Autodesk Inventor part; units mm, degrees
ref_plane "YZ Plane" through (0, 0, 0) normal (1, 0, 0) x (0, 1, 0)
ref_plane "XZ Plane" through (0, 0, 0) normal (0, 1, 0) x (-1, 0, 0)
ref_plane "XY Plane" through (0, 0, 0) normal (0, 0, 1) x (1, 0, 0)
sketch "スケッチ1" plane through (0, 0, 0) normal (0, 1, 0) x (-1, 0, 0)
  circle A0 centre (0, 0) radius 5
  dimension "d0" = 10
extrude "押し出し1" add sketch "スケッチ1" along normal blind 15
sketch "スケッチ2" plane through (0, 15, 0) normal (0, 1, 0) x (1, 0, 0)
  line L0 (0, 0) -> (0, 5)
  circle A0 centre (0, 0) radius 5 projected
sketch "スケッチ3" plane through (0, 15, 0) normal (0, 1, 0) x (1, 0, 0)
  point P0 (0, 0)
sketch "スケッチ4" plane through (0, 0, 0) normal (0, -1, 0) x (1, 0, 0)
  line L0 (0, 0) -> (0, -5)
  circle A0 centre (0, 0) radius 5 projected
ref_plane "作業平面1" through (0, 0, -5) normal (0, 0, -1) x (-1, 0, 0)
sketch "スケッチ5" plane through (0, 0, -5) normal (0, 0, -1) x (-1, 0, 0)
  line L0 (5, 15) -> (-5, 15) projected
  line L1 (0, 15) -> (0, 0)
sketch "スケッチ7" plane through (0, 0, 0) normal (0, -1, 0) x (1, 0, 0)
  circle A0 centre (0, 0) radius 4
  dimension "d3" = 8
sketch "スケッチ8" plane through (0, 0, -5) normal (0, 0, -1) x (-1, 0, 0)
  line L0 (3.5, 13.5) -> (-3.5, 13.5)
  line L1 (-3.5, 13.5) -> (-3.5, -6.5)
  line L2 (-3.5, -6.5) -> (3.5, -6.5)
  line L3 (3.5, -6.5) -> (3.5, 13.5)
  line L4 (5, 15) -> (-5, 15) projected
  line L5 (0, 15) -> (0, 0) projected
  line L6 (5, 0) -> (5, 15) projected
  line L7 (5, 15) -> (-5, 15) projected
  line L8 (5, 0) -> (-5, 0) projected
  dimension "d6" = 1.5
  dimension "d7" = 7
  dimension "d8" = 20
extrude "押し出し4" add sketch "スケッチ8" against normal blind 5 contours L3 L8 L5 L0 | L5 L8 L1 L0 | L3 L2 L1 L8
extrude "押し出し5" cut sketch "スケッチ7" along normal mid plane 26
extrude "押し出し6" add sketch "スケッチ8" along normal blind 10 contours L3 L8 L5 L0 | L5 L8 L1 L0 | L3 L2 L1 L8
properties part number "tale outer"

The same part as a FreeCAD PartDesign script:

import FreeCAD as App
import Part
import Sketcher

V = App.Vector
Q = App.Units.Quantity


def add_polygon(sketch, points):
    """Adds a closed chain of lines whose ends are joined by coincident constraints."""
    first, n = sketch.GeometryCount, len(points)
    for a, b in zip(points, points[1:] + points[:1]):
        sketch.addGeometry(Part.LineSegment(App.Vector(*a, 0), App.Vector(*b, 0)), False)
    for i in range(n):
        sketch.addConstraint(Sketcher.Constraint("Coincident", first + i, 2, first + (i + 1) % n, 1))

doc = App.newDocument("Part")
body = doc.addObject("PartDesign::Body", "Body")

# Sketch on XZ plane
sketch1 = doc.addObject("Sketcher::SketchObject", "Sketch")
body.addObject(sketch1)
sketch1.AttachmentSupport = (doc.XZ_Plane, [""])
sketch1.MapMode = "FlatFace"
sketch1.addGeometry(Part.Circle(V(0, 0, 0), V(0, 0, 1), 5), False)
sketch1.addConstraint([
    Sketcher.Constraint("Coincident", 0, 3, -1, 1),
    Sketcher.Constraint("Diameter", 0, Q("10 mm")),
])
pad1 = doc.addObject("PartDesign::Pad", "Pad")
body.addObject(pad1)
pad1.Profile = sketch1
pad1.Length = 15
pad1.Reversed = True

# Sketch on XY plane
sketch2 = doc.addObject("Sketcher::SketchObject", "Sketch001")
body.addObject(sketch2)
sketch2.AttachmentSupport = (doc.XY_Plane, [""])
sketch2.MapMode = "FlatFace"
sketch2.AttachmentOffset = App.Placement(V(0, 0, -5), App.Rotation())
add_polygon(sketch2, [(-4, 14), (4, 14), (4, -6), (-4, -6)])  # lines 0-3
sketch2.addConstraint([
    Sketcher.Constraint("Horizontal", 0),
    Sketcher.Constraint("Vertical", 1),
    Sketcher.Constraint("Horizontal", 2),
    Sketcher.Constraint("Vertical", 3),
    Sketcher.Constraint("DistanceX", 0, 1, 0, 2, Q("7 mm")),
    Sketcher.Constraint("DistanceY", 1, 2, 1, 1, Q("20 mm")),
    Sketcher.Constraint("DistanceX", -1, 1, 0, 2, Q("3.5 mm")),
    Sketcher.Constraint("DistanceY", -1, 1, 0, 2, Q("13.5 mm")),
])
pad2 = doc.addObject("PartDesign::Pad", "Pad001")
body.addObject(pad2)
pad2.Profile = sketch2
pad2.Length = 5

# Sketch on XZ plane
sketch3 = doc.addObject("Sketcher::SketchObject", "Sketch002")
body.addObject(sketch3)
sketch3.AttachmentSupport = (doc.XZ_Plane, [""])
sketch3.MapMode = "FlatFace"
sketch3.addGeometry(Part.Circle(V(0, 0, 0), V(0, 0, 1), 4), False)
sketch3.addConstraint([
    Sketcher.Constraint("Coincident", 0, 3, -1, 1),
    Sketcher.Constraint("Diameter", 0, Q("8 mm")),
])
pocket1 = doc.addObject("PartDesign::Pocket", "Pocket")
body.addObject(pocket1)
pocket1.Profile = sketch3
pocket1.Length = 26
pocket1.Midplane = True

# Sketch on XY plane
sketch4 = doc.addObject("Sketcher::SketchObject", "Sketch003")
body.addObject(sketch4)
sketch4.AttachmentSupport = (doc.XY_Plane, [""])
sketch4.MapMode = "FlatFace"
sketch4.AttachmentOffset = App.Placement(V(0, 0, -5), App.Rotation())
add_polygon(sketch4, [(-4, 14), (4, 14), (4, -6), (-4, -6)])  # lines 0-3
sketch4.addConstraint([
    Sketcher.Constraint("Horizontal", 0),
    Sketcher.Constraint("Vertical", 1),
    Sketcher.Constraint("Horizontal", 2),
    Sketcher.Constraint("Vertical", 3),
    Sketcher.Constraint("DistanceX", 0, 1, 0, 2, Q("7 mm")),
    Sketcher.Constraint("DistanceY", 1, 2, 1, 1, Q("20 mm")),
    Sketcher.Constraint("DistanceX", -1, 1, 0, 2, Q("3.5 mm")),
    Sketcher.Constraint("DistanceY", -1, 1, 0, 2, Q("13.5 mm")),
])
pad3 = doc.addObject("PartDesign::Pad", "Pad002")
body.addObject(pad3)
pad3.Profile = sketch4
pad3.Length = 10
pad3.Reversed = True

doc.recompute()
